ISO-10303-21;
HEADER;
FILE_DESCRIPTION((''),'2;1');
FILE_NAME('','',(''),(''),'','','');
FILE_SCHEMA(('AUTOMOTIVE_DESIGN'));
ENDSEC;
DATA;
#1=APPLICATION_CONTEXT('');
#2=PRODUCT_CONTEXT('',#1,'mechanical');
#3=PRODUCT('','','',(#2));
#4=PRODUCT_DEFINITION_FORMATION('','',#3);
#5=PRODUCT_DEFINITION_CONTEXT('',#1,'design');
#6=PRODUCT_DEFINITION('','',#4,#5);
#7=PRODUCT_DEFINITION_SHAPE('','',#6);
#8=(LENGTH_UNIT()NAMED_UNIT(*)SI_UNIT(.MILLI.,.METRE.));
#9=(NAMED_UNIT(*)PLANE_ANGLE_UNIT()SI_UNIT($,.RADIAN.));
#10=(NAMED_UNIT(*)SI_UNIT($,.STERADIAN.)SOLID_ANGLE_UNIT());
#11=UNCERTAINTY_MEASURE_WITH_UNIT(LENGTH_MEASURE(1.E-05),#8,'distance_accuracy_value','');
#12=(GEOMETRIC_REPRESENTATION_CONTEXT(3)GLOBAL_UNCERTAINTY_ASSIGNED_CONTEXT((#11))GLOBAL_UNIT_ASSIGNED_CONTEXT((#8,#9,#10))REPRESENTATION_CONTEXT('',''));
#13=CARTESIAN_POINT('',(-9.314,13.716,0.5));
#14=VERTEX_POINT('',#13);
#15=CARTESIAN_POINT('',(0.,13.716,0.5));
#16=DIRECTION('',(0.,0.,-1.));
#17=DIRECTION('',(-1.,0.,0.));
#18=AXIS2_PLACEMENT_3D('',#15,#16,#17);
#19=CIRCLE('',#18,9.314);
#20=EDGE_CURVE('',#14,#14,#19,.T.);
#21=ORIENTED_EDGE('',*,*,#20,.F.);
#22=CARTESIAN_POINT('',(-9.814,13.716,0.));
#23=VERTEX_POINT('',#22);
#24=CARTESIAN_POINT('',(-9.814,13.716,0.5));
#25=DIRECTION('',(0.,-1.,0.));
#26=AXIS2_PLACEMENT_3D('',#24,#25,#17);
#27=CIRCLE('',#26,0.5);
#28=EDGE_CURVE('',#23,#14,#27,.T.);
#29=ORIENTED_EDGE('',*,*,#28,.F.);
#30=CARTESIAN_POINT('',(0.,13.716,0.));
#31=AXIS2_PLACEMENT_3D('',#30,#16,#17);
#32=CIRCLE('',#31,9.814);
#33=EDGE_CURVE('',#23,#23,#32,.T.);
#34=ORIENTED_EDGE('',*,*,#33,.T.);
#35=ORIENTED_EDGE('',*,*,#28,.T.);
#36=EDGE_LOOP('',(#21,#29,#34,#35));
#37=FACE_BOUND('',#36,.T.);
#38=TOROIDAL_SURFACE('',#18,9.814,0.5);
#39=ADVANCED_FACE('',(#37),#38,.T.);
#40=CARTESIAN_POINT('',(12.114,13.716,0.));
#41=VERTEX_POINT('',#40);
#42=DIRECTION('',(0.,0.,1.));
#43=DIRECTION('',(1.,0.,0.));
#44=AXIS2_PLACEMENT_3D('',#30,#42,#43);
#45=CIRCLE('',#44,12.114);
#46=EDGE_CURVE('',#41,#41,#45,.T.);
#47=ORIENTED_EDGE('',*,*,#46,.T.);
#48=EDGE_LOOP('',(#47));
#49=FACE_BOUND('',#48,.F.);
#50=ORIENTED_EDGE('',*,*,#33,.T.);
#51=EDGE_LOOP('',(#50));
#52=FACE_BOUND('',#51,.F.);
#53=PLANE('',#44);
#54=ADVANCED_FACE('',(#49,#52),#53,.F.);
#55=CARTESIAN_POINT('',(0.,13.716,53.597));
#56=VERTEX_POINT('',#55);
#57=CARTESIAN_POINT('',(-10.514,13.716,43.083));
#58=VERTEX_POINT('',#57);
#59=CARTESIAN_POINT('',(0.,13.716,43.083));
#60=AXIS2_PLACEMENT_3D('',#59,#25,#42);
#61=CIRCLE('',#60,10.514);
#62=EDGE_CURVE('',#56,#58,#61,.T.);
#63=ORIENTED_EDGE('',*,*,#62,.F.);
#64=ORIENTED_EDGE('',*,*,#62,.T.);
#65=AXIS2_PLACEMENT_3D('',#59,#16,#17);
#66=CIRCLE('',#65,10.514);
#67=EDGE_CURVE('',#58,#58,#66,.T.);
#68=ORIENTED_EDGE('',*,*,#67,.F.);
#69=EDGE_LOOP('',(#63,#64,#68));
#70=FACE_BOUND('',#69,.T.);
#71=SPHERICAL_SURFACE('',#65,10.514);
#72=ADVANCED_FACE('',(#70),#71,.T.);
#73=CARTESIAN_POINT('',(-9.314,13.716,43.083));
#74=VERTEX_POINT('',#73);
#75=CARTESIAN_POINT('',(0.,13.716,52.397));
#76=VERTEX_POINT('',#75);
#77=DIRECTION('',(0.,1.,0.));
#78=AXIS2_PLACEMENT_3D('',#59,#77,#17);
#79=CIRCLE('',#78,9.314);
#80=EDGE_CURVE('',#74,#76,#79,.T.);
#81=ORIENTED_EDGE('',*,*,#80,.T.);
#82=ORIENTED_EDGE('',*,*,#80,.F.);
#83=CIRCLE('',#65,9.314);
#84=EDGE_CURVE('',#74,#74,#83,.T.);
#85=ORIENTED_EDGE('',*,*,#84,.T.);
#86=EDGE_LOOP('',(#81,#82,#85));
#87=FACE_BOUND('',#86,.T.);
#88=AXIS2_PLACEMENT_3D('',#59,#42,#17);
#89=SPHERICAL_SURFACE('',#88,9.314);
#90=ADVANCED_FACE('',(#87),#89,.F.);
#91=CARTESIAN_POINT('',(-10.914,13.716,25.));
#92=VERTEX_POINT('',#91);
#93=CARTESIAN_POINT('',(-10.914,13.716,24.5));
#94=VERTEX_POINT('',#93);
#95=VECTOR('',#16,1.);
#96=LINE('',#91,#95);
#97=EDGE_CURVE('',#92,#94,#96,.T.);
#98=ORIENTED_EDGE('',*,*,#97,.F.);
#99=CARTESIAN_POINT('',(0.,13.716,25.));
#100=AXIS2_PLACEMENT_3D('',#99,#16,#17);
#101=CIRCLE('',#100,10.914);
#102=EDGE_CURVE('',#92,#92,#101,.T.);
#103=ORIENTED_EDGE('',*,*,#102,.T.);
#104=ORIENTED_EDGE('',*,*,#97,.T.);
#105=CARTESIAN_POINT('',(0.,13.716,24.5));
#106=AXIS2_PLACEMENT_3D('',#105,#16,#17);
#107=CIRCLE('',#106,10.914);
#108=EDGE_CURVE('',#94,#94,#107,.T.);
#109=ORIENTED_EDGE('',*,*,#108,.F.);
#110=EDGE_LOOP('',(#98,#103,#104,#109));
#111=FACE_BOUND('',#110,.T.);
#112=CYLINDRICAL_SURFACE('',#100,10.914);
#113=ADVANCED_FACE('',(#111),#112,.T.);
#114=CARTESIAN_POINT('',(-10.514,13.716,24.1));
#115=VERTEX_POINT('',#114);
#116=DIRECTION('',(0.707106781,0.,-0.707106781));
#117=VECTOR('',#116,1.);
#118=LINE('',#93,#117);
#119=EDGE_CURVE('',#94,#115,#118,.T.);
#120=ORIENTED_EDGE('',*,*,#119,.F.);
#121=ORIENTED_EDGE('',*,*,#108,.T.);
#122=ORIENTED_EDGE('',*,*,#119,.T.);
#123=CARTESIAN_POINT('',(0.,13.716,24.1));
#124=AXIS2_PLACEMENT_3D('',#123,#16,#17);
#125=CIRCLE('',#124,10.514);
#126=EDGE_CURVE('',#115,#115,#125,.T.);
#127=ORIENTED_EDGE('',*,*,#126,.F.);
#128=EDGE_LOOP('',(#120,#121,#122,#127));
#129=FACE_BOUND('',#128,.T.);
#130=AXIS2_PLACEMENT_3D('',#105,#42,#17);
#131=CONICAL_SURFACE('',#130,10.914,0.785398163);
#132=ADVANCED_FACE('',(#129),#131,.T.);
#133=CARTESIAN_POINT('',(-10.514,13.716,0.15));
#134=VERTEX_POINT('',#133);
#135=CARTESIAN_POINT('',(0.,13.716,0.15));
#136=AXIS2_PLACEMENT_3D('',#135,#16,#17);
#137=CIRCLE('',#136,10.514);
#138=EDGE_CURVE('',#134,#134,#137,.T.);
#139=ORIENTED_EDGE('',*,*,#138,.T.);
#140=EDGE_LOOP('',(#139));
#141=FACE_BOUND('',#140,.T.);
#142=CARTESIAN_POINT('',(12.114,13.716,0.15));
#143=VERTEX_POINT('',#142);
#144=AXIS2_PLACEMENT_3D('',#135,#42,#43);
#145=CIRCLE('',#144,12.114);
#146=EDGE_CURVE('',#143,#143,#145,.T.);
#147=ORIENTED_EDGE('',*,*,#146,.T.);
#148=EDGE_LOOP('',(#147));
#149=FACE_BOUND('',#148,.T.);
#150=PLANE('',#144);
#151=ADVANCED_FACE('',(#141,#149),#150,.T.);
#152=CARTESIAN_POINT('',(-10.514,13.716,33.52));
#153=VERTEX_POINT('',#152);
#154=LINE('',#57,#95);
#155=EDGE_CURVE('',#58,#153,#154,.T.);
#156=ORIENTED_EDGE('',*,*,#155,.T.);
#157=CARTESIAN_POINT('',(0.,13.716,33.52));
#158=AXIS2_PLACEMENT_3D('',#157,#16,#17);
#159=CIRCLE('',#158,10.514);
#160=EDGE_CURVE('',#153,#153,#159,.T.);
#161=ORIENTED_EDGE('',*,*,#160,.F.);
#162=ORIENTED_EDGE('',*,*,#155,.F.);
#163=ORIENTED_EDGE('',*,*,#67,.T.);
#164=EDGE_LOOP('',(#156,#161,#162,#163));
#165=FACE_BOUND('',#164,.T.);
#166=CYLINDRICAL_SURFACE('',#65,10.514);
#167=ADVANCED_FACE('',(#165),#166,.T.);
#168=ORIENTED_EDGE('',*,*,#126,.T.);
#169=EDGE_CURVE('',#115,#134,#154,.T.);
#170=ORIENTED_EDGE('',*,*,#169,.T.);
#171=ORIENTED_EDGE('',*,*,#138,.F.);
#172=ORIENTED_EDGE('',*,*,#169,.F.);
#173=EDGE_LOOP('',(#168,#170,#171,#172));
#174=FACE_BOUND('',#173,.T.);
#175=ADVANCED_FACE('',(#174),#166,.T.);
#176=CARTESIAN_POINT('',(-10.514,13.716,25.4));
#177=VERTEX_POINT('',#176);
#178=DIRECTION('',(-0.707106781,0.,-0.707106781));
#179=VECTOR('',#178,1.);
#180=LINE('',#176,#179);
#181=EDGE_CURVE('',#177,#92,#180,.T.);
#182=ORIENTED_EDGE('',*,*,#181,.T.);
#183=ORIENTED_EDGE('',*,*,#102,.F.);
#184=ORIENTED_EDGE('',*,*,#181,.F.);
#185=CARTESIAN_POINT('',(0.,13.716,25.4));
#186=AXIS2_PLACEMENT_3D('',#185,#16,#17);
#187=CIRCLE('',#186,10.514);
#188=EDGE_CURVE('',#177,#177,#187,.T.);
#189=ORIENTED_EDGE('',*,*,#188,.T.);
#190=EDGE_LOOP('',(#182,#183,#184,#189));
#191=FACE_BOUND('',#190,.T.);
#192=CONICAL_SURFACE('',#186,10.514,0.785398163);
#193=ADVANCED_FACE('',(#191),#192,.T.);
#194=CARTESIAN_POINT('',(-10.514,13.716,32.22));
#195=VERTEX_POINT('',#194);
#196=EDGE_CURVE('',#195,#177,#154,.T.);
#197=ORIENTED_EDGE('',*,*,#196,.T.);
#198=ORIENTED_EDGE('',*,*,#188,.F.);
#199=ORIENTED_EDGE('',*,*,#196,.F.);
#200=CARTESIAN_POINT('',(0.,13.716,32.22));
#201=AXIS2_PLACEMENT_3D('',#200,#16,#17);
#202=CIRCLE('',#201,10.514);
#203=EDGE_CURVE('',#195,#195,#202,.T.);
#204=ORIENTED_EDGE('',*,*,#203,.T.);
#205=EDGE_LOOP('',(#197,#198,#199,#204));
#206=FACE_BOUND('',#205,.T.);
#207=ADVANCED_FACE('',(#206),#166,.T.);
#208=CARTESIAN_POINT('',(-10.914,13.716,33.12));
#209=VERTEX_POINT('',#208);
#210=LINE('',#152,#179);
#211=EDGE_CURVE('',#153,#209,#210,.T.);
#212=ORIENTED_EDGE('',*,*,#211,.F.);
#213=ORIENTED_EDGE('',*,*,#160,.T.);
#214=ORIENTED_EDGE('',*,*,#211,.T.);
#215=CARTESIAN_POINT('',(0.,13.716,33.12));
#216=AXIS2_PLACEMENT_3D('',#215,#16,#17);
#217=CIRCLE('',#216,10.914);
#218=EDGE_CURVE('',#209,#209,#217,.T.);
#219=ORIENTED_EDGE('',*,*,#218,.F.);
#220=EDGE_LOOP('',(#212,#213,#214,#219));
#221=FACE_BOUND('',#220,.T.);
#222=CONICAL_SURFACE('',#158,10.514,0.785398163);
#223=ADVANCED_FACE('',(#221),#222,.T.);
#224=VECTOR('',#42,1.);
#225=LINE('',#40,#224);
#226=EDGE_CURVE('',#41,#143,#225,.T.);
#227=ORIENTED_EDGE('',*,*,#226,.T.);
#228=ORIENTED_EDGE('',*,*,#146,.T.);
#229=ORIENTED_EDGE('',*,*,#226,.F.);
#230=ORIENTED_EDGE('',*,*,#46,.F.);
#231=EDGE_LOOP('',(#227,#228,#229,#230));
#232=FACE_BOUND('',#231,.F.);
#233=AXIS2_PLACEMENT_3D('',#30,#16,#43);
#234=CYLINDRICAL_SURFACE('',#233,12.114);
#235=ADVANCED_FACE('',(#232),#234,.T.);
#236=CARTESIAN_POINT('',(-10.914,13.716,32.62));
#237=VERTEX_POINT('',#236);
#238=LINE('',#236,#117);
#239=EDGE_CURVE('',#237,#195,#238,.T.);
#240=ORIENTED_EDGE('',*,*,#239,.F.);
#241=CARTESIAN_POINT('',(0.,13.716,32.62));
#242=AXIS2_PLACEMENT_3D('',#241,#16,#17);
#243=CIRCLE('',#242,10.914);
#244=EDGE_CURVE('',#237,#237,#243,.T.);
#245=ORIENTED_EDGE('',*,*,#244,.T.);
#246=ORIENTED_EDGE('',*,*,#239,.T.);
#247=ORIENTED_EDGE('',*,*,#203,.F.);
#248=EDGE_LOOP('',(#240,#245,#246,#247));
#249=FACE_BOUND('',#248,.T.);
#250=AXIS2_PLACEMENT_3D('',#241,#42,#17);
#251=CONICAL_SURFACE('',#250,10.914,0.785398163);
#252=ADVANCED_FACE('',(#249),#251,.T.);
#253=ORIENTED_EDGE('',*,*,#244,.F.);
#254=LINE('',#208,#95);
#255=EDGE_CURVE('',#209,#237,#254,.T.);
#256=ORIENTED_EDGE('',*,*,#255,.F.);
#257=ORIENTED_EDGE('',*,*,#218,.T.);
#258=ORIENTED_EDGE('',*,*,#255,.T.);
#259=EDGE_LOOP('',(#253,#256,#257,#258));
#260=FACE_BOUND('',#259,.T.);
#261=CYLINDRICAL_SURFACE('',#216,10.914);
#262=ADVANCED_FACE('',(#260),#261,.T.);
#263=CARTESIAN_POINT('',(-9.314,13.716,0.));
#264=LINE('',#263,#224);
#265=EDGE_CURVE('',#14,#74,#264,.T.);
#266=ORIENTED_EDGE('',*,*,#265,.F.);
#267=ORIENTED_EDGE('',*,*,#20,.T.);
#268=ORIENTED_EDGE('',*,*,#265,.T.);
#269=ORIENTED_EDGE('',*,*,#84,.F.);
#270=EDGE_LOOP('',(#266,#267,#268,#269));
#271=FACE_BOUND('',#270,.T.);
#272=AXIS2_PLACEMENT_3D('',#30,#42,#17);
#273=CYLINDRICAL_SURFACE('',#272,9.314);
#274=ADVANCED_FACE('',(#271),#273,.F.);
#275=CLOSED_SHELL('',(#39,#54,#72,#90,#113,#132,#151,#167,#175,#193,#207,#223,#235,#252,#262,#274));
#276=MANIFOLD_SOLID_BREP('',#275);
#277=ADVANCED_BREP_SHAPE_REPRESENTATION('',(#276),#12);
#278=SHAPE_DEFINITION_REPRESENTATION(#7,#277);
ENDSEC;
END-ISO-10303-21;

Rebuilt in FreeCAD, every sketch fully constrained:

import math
import FreeCAD as App
import Part
import Sketcher
from FreeCAD import Vector


def edges_at(feature, points):
    """Names of the edges that pass closest to the given points."""
    edges = feature.Shape.Edges
    near = lambda p: min(range(len(edges)), key=lambda i: edges[i].distToShape(Part.Vertex(*p))[0])
    return sorted({f"Edge{near(p) + 1}" for p in points})

doc = App.newDocument("Part")
body = doc.addObject("PartDesign::Body", "Body")

sketch1 = doc.addObject("Sketcher::SketchObject", "Sketch")
body.addObject(sketch1)
sketch1.AttachmentSupport = (doc.XZ_Plane, [""])
sketch1.MapMode = "FlatFace"
sketch1.addGeometry([
    Part.LineSegment(Vector(-10.5, 33.5, 0), Vector(-10.9, 33.1, 0)),
    Part.LineSegment(Vector(-10.9, 33.1, 0), Vector(-10.9, 32.6, 0)),
    Part.LineSegment(Vector(-10.9, 32.6, 0), Vector(-10.5, 32.2, 0)),
    Part.LineSegment(Vector(-10.5, 32.2, 0), Vector(-10.5, 25.4, 0)),
    Part.LineSegment(Vector(-10.5, 25.4, 0), Vector(-10.9, 25, 0)),
    Part.LineSegment(Vector(-10.9, 25, 0), Vector(-10.9, 24.5, 0)),
    Part.LineSegment(Vector(-10.9, 24.5, 0), Vector(-10.5, 24.1, 0)),
    Part.LineSegment(Vector(-10.5, 24.1, 0), Vector(-10.5, 0, 0)),
    Part.LineSegment(Vector(-10.5, 0, 0), Vector(-9.3, 0, 0)),
    Part.LineSegment(Vector(-9.3, 0, 0), Vector(-9.3, 43.1, 0)),
    Part.ArcOfCircle(Part.Circle(Vector(0, 43.1, 0), Vector(0, 0, 1), 9.3), math.radians(90), math.radians(180)),
    Part.LineSegment(Vector(0, 52.4, 0), Vector(0, 53.6, 0)),
    Part.ArcOfCircle(Part.Circle(Vector(0, 43.1, 0), Vector(0, 0, 1), 10.5), math.radians(90), math.radians(180)),
    Part.LineSegment(Vector(-10.5, 43.1, 0), Vector(-10.5, 33.5, 0)),
], False)
sketch1.addConstraint([
    Sketcher.Constraint("Coincident", 0, 2, 1, 1),
    Sketcher.Constraint("Coincident", 1, 2, 2, 1),
    Sketcher.Constraint("Coincident", 2, 2, 3, 1),
    Sketcher.Constraint("Coincident", 3, 2, 4, 1),
    Sketcher.Constraint("Coincident", 4, 2, 5, 1),
    Sketcher.Constraint("Coincident", 5, 2, 6, 1),
    Sketcher.Constraint("Coincident", 6, 2, 7, 1),
    Sketcher.Constraint("Coincident", 7, 2, 8, 1),
    Sketcher.Constraint("Coincident", 8, 2, 9, 1),
    Sketcher.Constraint("Tangent", 9, 2, 10, 2),
    Sketcher.Constraint("Coincident", 10, 1, 11, 1),
    Sketcher.Constraint("Coincident", 11, 2, 12, 1),
    Sketcher.Constraint("Tangent", 12, 2, 13, 1),
    Sketcher.Constraint("Coincident", 13, 2, 0, 1),
    Sketcher.Constraint("Vertical", 1),
    Sketcher.Constraint("Vertical", 3),
    Sketcher.Constraint("Vertical", 5),
    Sketcher.Constraint("Vertical", 7),
    Sketcher.Constraint("Horizontal", 8),
    Sketcher.Constraint("Vertical", 9),
    Sketcher.Constraint("Vertical", 11),
    Sketcher.Constraint("Vertical", 13),
    Sketcher.Constraint("Coincident", 12, 3, 10, 3),
    Sketcher.Constraint("PointOnObject", 10, 3, -2),
    Sketcher.Constraint("PointOnObject", 7, 2, -1),
    Sketcher.Constraint("PointOnObject", 10, 1, -2),
    Sketcher.Constraint("Perpendicular", 0, 2),
    Sketcher.Constraint("Perpendicular", 2, 4),
    Sketcher.Constraint("Perpendicular", 4, 6),
    Sketcher.Constraint("Vertical", 1, 2, 4, 2),
    Sketcher.Constraint("Vertical", 3, 2, 6, 2),
    Sketcher.Constraint("Vertical", 7, 2, 12, 2),
    Sketcher.Constraint("Equal", 1, 5),
    Sketcher.Constraint("Equal", 0, 2),
    Sketcher.Constraint("DistanceX", 8, 1, 8, 2, 1.2),
    Sketcher.Constraint("DistanceY", 1, 2, 1, 1, 0.5),
    Sketcher.Constraint("DistanceY", 7, 2, 7, 1, 24.1),
    Sketcher.Constraint("DistanceY", -1, 1, 4, 2, 25.0),
    Sketcher.Constraint("Radius", 10, 9.314),
    Sketcher.Constraint("DistanceY", 3, 2, 3, 1, 6.82),
    Sketcher.Constraint("DistanceY", 9, 1, 9, 2, 43.083),
])
revolution = doc.addObject("PartDesign::Revolution", "Revolution")
body.addObject(revolution)
revolution.Profile = sketch1
revolution.ReferenceAxis = (sketch1, ["V_Axis"])
revolution.Angle = 360
doc.recompute()

fillet = doc.addObject("PartDesign::Fillet", "Fillet")
body.addObject(fillet)
fillet.Base = (revolution, edges_at(revolution, [(9.314, 0, 0)]))
fillet.Radius = 0.5

sketch2 = doc.addObject("Sketcher::SketchObject", "Sketch001")
body.addObject(sketch2)
sketch2.AttachmentSupport = (doc.XY_Plane, [""])
sketch2.MapMode = "FlatFace"
sketch2.addGeometry([
    Part.Circle(Vector(0, 0, 0), Vector(0, 0, 1), 12),
    Part.Circle(Vector(0, 0, 0), Vector(0, 0, 1), 11),
], False)
sketch2.addConstraint([
    Sketcher.Constraint("Coincident", 0, 3, -1, 1),
    Sketcher.Constraint("Coincident", 1, 3, -1, 1),
    Sketcher.Constraint("Diameter", 0, 24.228),
    Sketcher.Constraint("Diameter", 1, 21.028),
])
pad1 = doc.addObject("PartDesign::Pad", "Pad")
body.addObject(pad1)
pad1.Profile = sketch2
pad1.Length = 0.15
body2 = doc.addObject("PartDesign::Body", "Body001")
doc.recompute()

body.Placement = App.Placement(Vector(0, 13.716, 0), App.Rotation(Vector(0, 0, 1), 0))
boolean = doc.addObject("PartDesign::Boolean", "Boolean")
body2.addObject(boolean)
boolean.Type = "Fuse"
boolean.addObjects([body])

doc.recompute()
